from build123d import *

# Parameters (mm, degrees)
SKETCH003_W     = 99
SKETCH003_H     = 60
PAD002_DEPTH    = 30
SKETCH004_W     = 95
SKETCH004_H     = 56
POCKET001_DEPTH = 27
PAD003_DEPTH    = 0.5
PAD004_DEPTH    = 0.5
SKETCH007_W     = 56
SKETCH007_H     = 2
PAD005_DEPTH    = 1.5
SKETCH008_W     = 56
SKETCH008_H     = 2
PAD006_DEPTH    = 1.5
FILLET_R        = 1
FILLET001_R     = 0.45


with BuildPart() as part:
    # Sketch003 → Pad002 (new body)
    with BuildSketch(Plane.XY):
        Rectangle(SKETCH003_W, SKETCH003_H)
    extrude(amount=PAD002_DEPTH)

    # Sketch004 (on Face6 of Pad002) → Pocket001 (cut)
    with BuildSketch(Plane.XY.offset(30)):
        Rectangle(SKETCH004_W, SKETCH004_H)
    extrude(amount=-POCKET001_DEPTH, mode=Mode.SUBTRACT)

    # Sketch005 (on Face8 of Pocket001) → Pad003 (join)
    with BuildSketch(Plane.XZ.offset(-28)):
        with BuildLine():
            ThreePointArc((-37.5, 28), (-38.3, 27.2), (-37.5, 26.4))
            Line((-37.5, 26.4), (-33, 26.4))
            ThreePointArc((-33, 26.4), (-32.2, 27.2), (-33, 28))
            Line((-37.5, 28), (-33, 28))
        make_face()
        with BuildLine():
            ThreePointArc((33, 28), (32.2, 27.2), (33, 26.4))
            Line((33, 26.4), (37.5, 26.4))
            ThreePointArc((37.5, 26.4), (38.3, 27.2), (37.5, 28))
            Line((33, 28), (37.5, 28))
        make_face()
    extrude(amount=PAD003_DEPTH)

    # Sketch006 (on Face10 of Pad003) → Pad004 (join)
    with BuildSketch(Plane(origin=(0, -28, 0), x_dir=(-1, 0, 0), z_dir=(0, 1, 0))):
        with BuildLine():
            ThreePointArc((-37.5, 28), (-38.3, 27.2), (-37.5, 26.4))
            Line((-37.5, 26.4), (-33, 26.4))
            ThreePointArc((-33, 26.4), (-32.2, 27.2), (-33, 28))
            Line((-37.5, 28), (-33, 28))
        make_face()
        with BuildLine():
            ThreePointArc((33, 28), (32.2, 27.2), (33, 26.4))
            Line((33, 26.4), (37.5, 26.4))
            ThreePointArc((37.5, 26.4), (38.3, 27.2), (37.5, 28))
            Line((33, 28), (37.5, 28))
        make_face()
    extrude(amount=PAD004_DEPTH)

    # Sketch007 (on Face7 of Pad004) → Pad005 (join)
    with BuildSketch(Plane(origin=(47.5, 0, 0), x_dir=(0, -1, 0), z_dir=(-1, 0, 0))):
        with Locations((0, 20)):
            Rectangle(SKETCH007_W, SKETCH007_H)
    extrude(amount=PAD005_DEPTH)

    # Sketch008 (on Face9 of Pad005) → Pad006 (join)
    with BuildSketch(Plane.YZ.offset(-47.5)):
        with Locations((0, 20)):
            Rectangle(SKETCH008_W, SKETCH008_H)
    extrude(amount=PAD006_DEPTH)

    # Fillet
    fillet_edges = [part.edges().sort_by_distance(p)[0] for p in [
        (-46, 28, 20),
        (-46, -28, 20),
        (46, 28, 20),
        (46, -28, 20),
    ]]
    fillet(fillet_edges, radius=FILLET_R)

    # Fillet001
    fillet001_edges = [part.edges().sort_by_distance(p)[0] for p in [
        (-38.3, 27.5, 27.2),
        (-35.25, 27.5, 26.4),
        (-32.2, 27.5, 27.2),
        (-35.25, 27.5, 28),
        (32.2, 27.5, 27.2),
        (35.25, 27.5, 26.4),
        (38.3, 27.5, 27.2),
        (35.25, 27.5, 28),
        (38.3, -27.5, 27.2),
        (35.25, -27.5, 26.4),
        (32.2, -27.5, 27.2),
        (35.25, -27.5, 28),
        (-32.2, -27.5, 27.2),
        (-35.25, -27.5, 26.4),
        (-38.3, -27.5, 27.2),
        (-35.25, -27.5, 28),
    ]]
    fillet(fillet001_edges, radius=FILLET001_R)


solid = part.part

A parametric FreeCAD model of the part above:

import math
import FreeCAD as App
import Part
import Sketcher
from FreeCAD import Vector
Q = App.Units.Quantity


def edges_at(feature, points):
    """Names of the edges that pass closest to the given points."""
    edges = feature.Shape.Edges
    near = lambda p: min(range(len(edges)), key=lambda i: edges[i].distToShape(Part.Vertex(*p))[0])
    return sorted({f"Edge{near(p) + 1}" for p in points})


def add_polygon(sketch, points):
    """Adds a closed chain of lines whose ends are joined by coincident constraints."""
    first, n = sketch.GeometryCount, len(points)
    for a, b in zip(points, points[1:] + points[:1]):
        sketch.addGeometry(Part.LineSegment(App.Vector(*a, 0), App.Vector(*b, 0)), False)
    for i in range(n):
        sketch.addConstraint(Sketcher.Constraint("Coincident", first + i, 2, first + (i + 1) % n, 1))

doc = App.newDocument("Part")
body = doc.addObject("PartDesign::Body", "Body")

# Sketch on XY plane
sketch1 = doc.addObject("Sketcher::SketchObject", "Sketch")
body.addObject(sketch1)
sketch1.AttachmentSupport = (doc.XY_Plane, [""])
sketch1.MapMode = "FlatFace"
add_polygon(sketch1, [(-50, 30), (-50, -30), (50, -30), (50, 30)])  # lines 0-3
sketch1.addConstraint(Sketcher.Constraint("Vertical", 0))
sketch1.addConstraint(Sketcher.Constraint("Horizontal", 1))
sketch1.addConstraint(Sketcher.Constraint("Vertical", 2))
sketch1.addConstraint(Sketcher.Constraint("Horizontal", 3))
sketch1.addConstraint(Sketcher.Constraint("Symmetric", 0, 2, 2, 2, -1, 1))
sketch1.addConstraint(Sketcher.Constraint("DistanceX", 1, 1, 1, 2, Q("99 mm")))
sketch1.addConstraint(Sketcher.Constraint("DistanceY", 0, 2, 0, 1, Q("60 mm")))
pad1 = doc.addObject("PartDesign::Pad", "Pad")
body.addObject(pad1)
pad1.Profile = sketch1
pad1.Length = 30

# Sketch on XY plane
sketch2 = doc.addObject("Sketcher::SketchObject", "Sketch001")
body.addObject(sketch2)
sketch2.AttachmentSupport = (doc.XY_Plane, [""])
sketch2.MapMode = "FlatFace"
sketch2.AttachmentOffset = App.Placement(Vector(0, 0, 30), App.Rotation())
add_polygon(sketch2, [(-48, 28), (-48, -28), (48, -28), (48, 28)])  # lines 0-3
sketch2.addConstraint(Sketcher.Constraint("Vertical", 0))
sketch2.addConstraint(Sketcher.Constraint("Horizontal", 1))
sketch2.addConstraint(Sketcher.Constraint("Vertical", 2))
sketch2.addConstraint(Sketcher.Constraint("Horizontal", 3))
sketch2.addConstraint(Sketcher.Constraint("Symmetric", 0, 2, 2, 2, -1, 1))
sketch2.addConstraint(Sketcher.Constraint("DistanceX", 1, 1, 1, 2, Q("95 mm")))
sketch2.addConstraint(Sketcher.Constraint("DistanceY", 0, 2, 0, 1, Q("56 mm")))
pocket1 = doc.addObject("PartDesign::Pocket", "Pocket")
body.addObject(pocket1)
pocket1.Profile = sketch2
pocket1.Length = 27

# Sketch on XZ plane
sketch3 = doc.addObject("Sketcher::SketchObject", "Sketch002")
body.addObject(sketch3)
sketch3.AttachmentSupport = (doc.XZ_Plane, [""])
sketch3.MapMode = "FlatFace"
sketch3.AttachmentOffset = App.Placement(Vector(0, 0, -28), App.Rotation())
sketch3.addGeometry(Part.ArcOfCircle(Part.Circle(Vector(-37.5, 27.2, 0), Vector(0, 0, 1), 0.8), math.radians(90), math.radians(270)), False)
sketch3.addGeometry(Part.LineSegment(Vector(-37.5, 26.4, 0), Vector(-33, 26.4, 0)), False)
sketch3.addGeometry(Part.ArcOfCircle(Part.Circle(Vector(-33, 27.2, 0), Vector(0, 0, 1), 0.8), math.radians(-90), math.radians(90)), False)
sketch3.addGeometry(Part.LineSegment(Vector(-33, 28, 0), Vector(-37.5, 28, 0)), False)
sketch3.addGeometry(Part.ArcOfCircle(Part.Circle(Vector(33, 27.2, 0), Vector(0, 0, 1), 0.8), math.radians(90), math.radians(270)), False)
sketch3.addGeometry(Part.LineSegment(Vector(33, 26.4, 0), Vector(37.5, 26.4, 0)), False)
sketch3.addGeometry(Part.ArcOfCircle(Part.Circle(Vector(37.5, 27.2, 0), Vector(0, 0, 1), 0.8), math.radians(-90), math.radians(90)), False)
sketch3.addGeometry(Part.LineSegment(Vector(37.5, 28, 0), Vector(33, 28, 0)), False)
sketch3.addConstraint(Sketcher.Constraint("Tangent", 0, 2, 1, 1))
sketch3.addConstraint(Sketcher.Constraint("Tangent", 1, 2, 2, 1))
sketch3.addConstraint(Sketcher.Constraint("Tangent", 2, 2, 3, 1))
sketch3.addConstraint(Sketcher.Constraint("Tangent", 3, 2, 0, 1))
sketch3.addConstraint(Sketcher.Constraint("Tangent", 4, 2, 5, 1))
sketch3.addConstraint(Sketcher.Constraint("Tangent", 5, 2, 6, 1))
sketch3.addConstraint(Sketcher.Constraint("Tangent", 6, 2, 7, 1))
sketch3.addConstraint(Sketcher.Constraint("Tangent", 7, 2, 4, 1))
sketch3.addConstraint(Sketcher.Constraint("Horizontal", 1))
sketch3.addConstraint(Sketcher.Constraint("Horizontal", 3))
sketch3.addConstraint(Sketcher.Constraint("Horizontal", 5))
sketch3.addConstraint(Sketcher.Constraint("Horizontal", 7))
sketch3.addConstraint(Sketcher.Constraint("Equal", 2, 4))
sketch3.addConstraint(Sketcher.Constraint("Symmetric", 2, 3, 4, 3, -2))
sketch3.addConstraint(Sketcher.Constraint("Equal", 3, 5))
sketch3.addConstraint(Sketcher.Constraint("Radius", 0, Q("0.8 mm")))
sketch3.addConstraint(Sketcher.Constraint("DistanceX", 1, 1, 1, 2, Q("4.5 mm")))
sketch3.addConstraint(Sketcher.Constraint("DistanceX", 2, 3, -1, 1, Q("33 mm")))
sketch3.addConstraint(Sketcher.Constraint("DistanceY", -1, 1, 2, 2, Q("28 mm")))
pad2 = doc.addObject("PartDesign::Pad", "Pad001")
body.addObject(pad2)
pad2.Profile = sketch3
pad2.Length = 0.5

# Sketch on XZ plane
sketch4 = doc.addObject("Sketcher::SketchObject", "Sketch003")
body.addObject(sketch4)
sketch4.AttachmentSupport = (doc.XZ_Plane, [""])
sketch4.MapMode = "FlatFace"
sketch4.AttachmentOffset = App.Placement(Vector(0, 0, 28), App.Rotation())
sketch4.addGeometry(Part.ArcOfCircle(Part.Circle(Vector(37.5, 27.2, 0), Vector(0, 0, 1), 0.8), math.radians(-90), math.radians(90)), False)
sketch4.addGeometry(Part.LineSegment(Vector(37.5, 26.4, 0), Vector(33, 26.4, 0)), False)
sketch4.addGeometry(Part.ArcOfCircle(Part.Circle(Vector(33, 27.2, 0), Vector(0, 0, 1), 0.8), math.radians(90), math.radians(270)), False)
sketch4.addGeometry(Part.LineSegment(Vector(33, 28, 0), Vector(37.5, 28, 0)), False)
sketch4.addGeometry(Part.ArcOfCircle(Part.Circle(Vector(-33, 27.2, 0), Vector(0, 0, 1), 0.8), math.radians(-90), math.radians(90)), False)
sketch4.addGeometry(Part.LineSegment(Vector(-33, 26.4, 0), Vector(-37.5, 26.4, 0)), False)
sketch4.addGeometry(Part.ArcOfCircle(Part.Circle(Vector(-37.5, 27.2, 0), Vector(0, 0, 1), 0.8), math.radians(90), math.radians(270)), False)
sketch4.addGeometry(Part.LineSegment(Vector(-37.5, 28, 0), Vector(-33, 28, 0)), False)
sketch4.addConstraint(Sketcher.Constraint("Tangent", 0, 1, 1, 1))
sketch4.addConstraint(Sketcher.Constraint("Tangent", 1, 2, 2, 2))
sketch4.addConstraint(Sketcher.Constraint("Tangent", 2, 1, 3, 1))
sketch4.addConstraint(Sketcher.Constraint("Tangent", 3, 2, 0, 2))
sketch4.addConstraint(Sketcher.Constraint("Tangent", 4, 1, 5, 1))
sketch4.addConstraint(Sketcher.Constraint("Tangent", 5, 2, 6, 2))
sketch4.addConstraint(Sketcher.Constraint("Tangent", 6, 1, 7, 1))
sketch4.addConstraint(Sketcher.Constraint("Tangent", 7, 2, 4, 2))
sketch4.addConstraint(Sketcher.Constraint("Horizontal", 1))
sketch4.addConstraint(Sketcher.Constraint("Horizontal", 3))
sketch4.addConstraint(Sketcher.Constraint("Horizontal", 5))
sketch4.addConstraint(Sketcher.Constraint("Horizontal", 7))
sketch4.addConstraint(Sketcher.Constraint("Equal", 2, 4))
sketch4.addConstraint(Sketcher.Constraint("Symmetric", 2, 3, 4, 3, -2))
sketch4.addConstraint(Sketcher.Constraint("Equal", 3, 5))
sketch4.addConstraint(Sketcher.Constraint("Radius", 0, Q("0.8 mm")))
sketch4.addConstraint(Sketcher.Constraint("DistanceX", 1, 2, 1, 1, Q("4.5 mm")))
sketch4.addConstraint(Sketcher.Constraint("DistanceX", -1, 1, 2, 3, Q("33 mm")))
sketch4.addConstraint(Sketcher.Constraint("DistanceY", -1, 1, 2, 1, Q("28 mm")))
pad3 = doc.addObject("PartDesign::Pad", "Pad002")
body.addObject(pad3)
pad3.Profile = sketch4
pad3.Length = 0.5
pad3.Reversed = True

# Sketch on YZ plane
sketch5 = doc.addObject("Sketcher::SketchObject", "Sketch004")
body.addObject(sketch5)
sketch5.AttachmentSupport = (doc.YZ_Plane, [""])
sketch5.MapMode = "FlatFace"
sketch5.AttachmentOffset = App.Placement(Vector(0, 0, 47.5), App.Rotation())
add_polygon(sketch5, [(28, 21), (28, 19), (-28, 19), (-28, 21)])  # lines 0-3
sketch5.addConstraint(Sketcher.Constraint("Vertical", 0))
sketch5.addConstraint(Sketcher.Constraint("Horizontal", 1))
sketch5.addConstraint(Sketcher.Constraint("Vertical", 2))
sketch5.addConstraint(Sketcher.Constraint("Horizontal", 3))
sketch5.addConstraint(Sketcher.Constraint("DistanceX", 1, 2, 1, 1, Q("56 mm")))
sketch5.addConstraint(Sketcher.Constraint("DistanceY", 0, 2, 0, 1, Q("2 mm")))
sketch5.addConstraint(Sketcher.Constraint("DistanceX", -1, 1, 0, 2, Q("28 mm")))
sketch5.addConstraint(Sketcher.Constraint("DistanceY", -1, 1, 0, 2, Q("19 mm")))
pad4 = doc.addObject("PartDesign::Pad", "Pad003")
body.addObject(pad4)
pad4.Profile = sketch5
pad4.Length = 1.5
pad4.Reversed = True

# Sketch on YZ plane
sketch6 = doc.addObject("Sketcher::SketchObject", "Sketch005")
body.addObject(sketch6)
sketch6.AttachmentSupport = (doc.YZ_Plane, [""])
sketch6.MapMode = "FlatFace"
sketch6.AttachmentOffset = App.Placement(Vector(0, 0, -47.5), App.Rotation())
add_polygon(sketch6, [(-28, 21), (-28, 19), (28, 19), (28, 21)])  # lines 0-3
sketch6.addConstraint(Sketcher.Constraint("Vertical", 0))
sketch6.addConstraint(Sketcher.Constraint("Horizontal", 1))
sketch6.addConstraint(Sketcher.Constraint("Vertical", 2))
sketch6.addConstraint(Sketcher.Constraint("Horizontal", 3))
sketch6.addConstraint(Sketcher.Constraint("DistanceX", 1, 1, 1, 2, Q("56 mm")))
sketch6.addConstraint(Sketcher.Constraint("DistanceY", 0, 2, 0, 1, Q("2 mm")))
sketch6.addConstraint(Sketcher.Constraint("DistanceX", 0, 2, -1, 1, Q("28 mm")))
sketch6.addConstraint(Sketcher.Constraint("DistanceY", -1, 1, 0, 2, Q("19 mm")))
pad5 = doc.addObject("PartDesign::Pad", "Pad004")
body.addObject(pad5)
pad5.Profile = sketch6
pad5.Length = 1.5
doc.recompute()

fillet = doc.addObject("PartDesign::Fillet", "Fillet")
body.addObject(fillet)
fillet.Base = (pad5, edges_at(pad5, [
    (-46, 28, 20),
    (-46, -28, 20),
    (46, 28, 20),
    (46, -28, 20),
]))
fillet.Radius = 1
doc.recompute()

fillet2 = doc.addObject("PartDesign::Fillet", "Fillet001")
body.addObject(fillet2)
fillet2.Base = (fillet, edges_at(fillet, [
    (-38.3, 27.5, 27.2),
    (-35.25, 27.5, 26.4),
    (-32.2, 27.5, 27.2),
    (-35.25, 27.5, 28),
    (32.2, 27.5, 27.2),
    (35.25, 27.5, 26.4),
    (38.3, 27.5, 27.2),
    (35.25, 27.5, 28),
    (38.3, -27.5, 27.2),
    (35.25, -27.5, 26.4),
    (32.2, -27.5, 27.2),
    (35.25, -27.5, 28),
    (-32.2, -27.5, 27.2),
    (-35.25, -27.5, 26.4),
    (-38.3, -27.5, 27.2),
    (-35.25, -27.5, 28),
]))
fillet2.Radius = 0.45

doc.recompute()
